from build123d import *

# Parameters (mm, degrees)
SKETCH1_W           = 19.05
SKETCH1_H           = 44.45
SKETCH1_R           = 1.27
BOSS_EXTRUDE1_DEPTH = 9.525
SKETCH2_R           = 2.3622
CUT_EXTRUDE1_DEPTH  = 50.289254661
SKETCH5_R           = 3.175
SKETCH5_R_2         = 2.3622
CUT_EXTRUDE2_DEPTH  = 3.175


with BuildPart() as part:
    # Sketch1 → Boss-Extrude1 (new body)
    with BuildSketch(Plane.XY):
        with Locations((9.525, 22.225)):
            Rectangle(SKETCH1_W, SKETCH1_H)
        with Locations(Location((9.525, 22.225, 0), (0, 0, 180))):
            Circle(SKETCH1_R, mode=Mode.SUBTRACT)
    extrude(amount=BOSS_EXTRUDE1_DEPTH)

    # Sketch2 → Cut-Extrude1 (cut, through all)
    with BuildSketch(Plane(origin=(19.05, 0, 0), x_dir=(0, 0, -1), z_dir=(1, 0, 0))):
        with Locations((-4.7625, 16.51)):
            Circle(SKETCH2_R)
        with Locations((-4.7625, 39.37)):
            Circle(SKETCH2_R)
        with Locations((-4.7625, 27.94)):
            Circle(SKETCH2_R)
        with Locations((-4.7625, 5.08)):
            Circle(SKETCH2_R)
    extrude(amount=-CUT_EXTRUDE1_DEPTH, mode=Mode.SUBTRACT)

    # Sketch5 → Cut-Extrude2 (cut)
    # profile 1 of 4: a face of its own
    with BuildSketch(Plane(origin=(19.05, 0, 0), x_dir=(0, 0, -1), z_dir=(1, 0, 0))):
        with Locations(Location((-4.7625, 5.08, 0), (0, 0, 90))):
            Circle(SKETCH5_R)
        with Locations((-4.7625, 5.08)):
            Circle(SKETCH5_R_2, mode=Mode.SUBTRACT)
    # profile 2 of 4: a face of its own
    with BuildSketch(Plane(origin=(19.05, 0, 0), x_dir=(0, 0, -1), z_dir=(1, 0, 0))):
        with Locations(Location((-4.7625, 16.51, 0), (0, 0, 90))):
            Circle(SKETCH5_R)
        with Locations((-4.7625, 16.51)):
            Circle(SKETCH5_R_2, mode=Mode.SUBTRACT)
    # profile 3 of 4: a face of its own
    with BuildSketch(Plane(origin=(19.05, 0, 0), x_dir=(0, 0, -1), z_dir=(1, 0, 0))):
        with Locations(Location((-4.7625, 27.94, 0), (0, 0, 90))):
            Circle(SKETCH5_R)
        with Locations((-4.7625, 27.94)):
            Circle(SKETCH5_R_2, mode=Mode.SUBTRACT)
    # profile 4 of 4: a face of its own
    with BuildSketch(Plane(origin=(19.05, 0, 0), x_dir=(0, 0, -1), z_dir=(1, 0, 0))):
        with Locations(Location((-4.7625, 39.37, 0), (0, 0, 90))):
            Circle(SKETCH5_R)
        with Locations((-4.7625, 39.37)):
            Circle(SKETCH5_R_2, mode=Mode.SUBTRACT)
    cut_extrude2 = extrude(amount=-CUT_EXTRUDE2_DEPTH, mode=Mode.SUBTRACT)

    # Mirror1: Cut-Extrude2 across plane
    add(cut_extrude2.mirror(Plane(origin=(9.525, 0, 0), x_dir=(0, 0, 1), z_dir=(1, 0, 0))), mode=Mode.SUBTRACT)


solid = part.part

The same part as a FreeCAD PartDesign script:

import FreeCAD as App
import Part
import Sketcher

V = App.Vector
Q = App.Units.Quantity

doc = App.newDocument("Part")
body = doc.addObject("PartDesign::Body", "Body")

sketch1 = body.newObject("Sketcher::SketchObject", "Sketch")
sketch1.AttachmentSupport = (doc.getObject("XY_Plane"), [""])
sketch1.MapMode = "FlatFace"
sketch1.addGeometry([
    Part.LineSegment(V(0, 44.45, 0), V(0, 0, 0)),
    Part.LineSegment(V(0, 0, 0), V(19.05, 0, 0)),
    Part.LineSegment(V(19.05, 0, 0), V(19.05, 44.45, 0)),
    Part.LineSegment(V(19.05, 44.45, 0), V(0, 44.45, 0)),
    Part.Circle(V(9.525, 22.225, 0), V(0, 0, 1), 1.27),
], False)
sketch1.addConstraint([
    Sketcher.Constraint("Coincident", 0, 2, 1, 1),
    Sketcher.Constraint("Coincident", 1, 2, 2, 1),
    Sketcher.Constraint("Coincident", 2, 2, 3, 1),
    Sketcher.Constraint("Coincident", 3, 2, 0, 1),
    Sketcher.Constraint("Vertical", 0),
    Sketcher.Constraint("Horizontal", 1),
    Sketcher.Constraint("Vertical", 2),
    Sketcher.Constraint("Horizontal", 3),
    Sketcher.Constraint("Coincident", 0, 2, -1, 1),
    Sketcher.Constraint("Diameter", 4, Q("0.1 in")),
    Sketcher.Constraint("DistanceX", 1, 1, 1, 2, Q("0.75 in")),
    Sketcher.Constraint("DistanceY", 0, 2, 0, 1, Q("1.75 in")),
    Sketcher.Constraint("DistanceX", -1, 1, 4, 3, Q("0.375 in")),
    Sketcher.Constraint("DistanceY", -1, 1, 4, 3, Q("0.875 in")),
])
pad1 = body.newObject("PartDesign::Pad", "Pad")
pad1.Profile = sketch1
pad1.Length = Q("0.375 in")

sketch2 = body.newObject("Sketcher::SketchObject", "Sketch001")
sketch2.AttachmentSupport = (doc.getObject("YZ_Plane"), [""])
sketch2.MapMode = "FlatFace"
sketch2.AttachmentOffset = App.Placement(V(0, 0, 0.75 * 25.4), App.Rotation())
sketch2.addGeometry([
    Part.Circle(V(16.51, 4.7625, 0), V(0, 0, 1), 2.3622),
    Part.Circle(V(39.37, 4.7625, 0), V(0, 0, 1), 2.3622),
    Part.Circle(V(27.94, 4.7625, 0), V(0, 0, 1), 2.3622),
    Part.Circle(V(5.08, 4.7625, 0), V(0, 0, 1), 2.3622),
], False)
sketch2.addConstraint([
    Sketcher.Constraint("Equal", 0, 1),
    Sketcher.Constraint("Equal", 1, 2),
    Sketcher.Constraint("Equal", 2, 3),
    Sketcher.Constraint("Horizontal", 0, 3, 1, 3),
    Sketcher.Constraint("Horizontal", 1, 3, 2, 3),
    Sketcher.Constraint("Horizontal", 2, 3, 3, 3),
    Sketcher.Constraint("Diameter", 0, Q("0.186 in")),
    Sketcher.Constraint("DistanceX", -1, 1, 2, 3, Q("1.1 in")),
    Sketcher.Constraint("DistanceX", -1, 1, 3, 3, Q("0.2 in")),
    Sketcher.Constraint("DistanceX", 0, 3, 1, 3, Q("0.9 in")),
    Sketcher.Constraint("DistanceX", -1, 1, 0, 3, Q("0.65 in")),
    Sketcher.Constraint("DistanceY", -1, 1, 0, 3, Q("0.1875 in")),
])
pocket1 = body.newObject("PartDesign::Pocket", "Pocket")
pocket1.Profile = sketch2
pocket1.Type = "ThroughAll"

sketch3 = body.newObject("Sketcher::SketchObject", "Sketch002")
sketch3.AttachmentSupport = (doc.getObject("YZ_Plane"), [""])
sketch3.MapMode = "FlatFace"
sketch3.AttachmentOffset = App.Placement(V(0, 0, 0.75 * 25.4), App.Rotation())
sketch3.addGeometry([
    Part.Circle(V(5.08, 4.7625, 0), V(0, 0, 1), 3.175),
    Part.Circle(V(5.08, 4.7625, 0), V(0, 0, 1), 2.3622),
    Part.Circle(V(16.51, 4.7625, 0), V(0, 0, 1), 3.175),
    Part.Circle(V(16.51, 4.7625, 0), V(0, 0, 1), 2.3622),
    Part.Circle(V(27.94, 4.7625, 0), V(0, 0, 1), 3.175),
    Part.Circle(V(27.94, 4.7625, 0), V(0, 0, 1), 2.3622),
    Part.Circle(V(39.37, 4.7625, 0), V(0, 0, 1), 3.175),
    Part.Circle(V(39.37, 4.7625, 0), V(0, 0, 1), 2.3622),
], False)
sketch3.addConstraint([
    Sketcher.Constraint("Coincident", 1, 3, 0, 3),
    Sketcher.Constraint("Coincident", 3, 3, 2, 3),
    Sketcher.Constraint("Coincident", 5, 3, 4, 3),
    Sketcher.Constraint("Coincident", 7, 3, 6, 3),
    Sketcher.Constraint("Equal", 0, 2),
    Sketcher.Constraint("Equal", 1, 3),
    Sketcher.Constraint("Equal", 2, 4),
    Sketcher.Constraint("Equal", 3, 5),
    Sketcher.Constraint("Equal", 4, 6),
    Sketcher.Constraint("Equal", 5, 7),
    Sketcher.Constraint("Horizontal", 1, 3, 2, 3),
    Sketcher.Constraint("Horizontal", 3, 3, 4, 3),
    Sketcher.Constraint("Horizontal", 5, 3, 6, 3),
    Sketcher.Constraint("Diameter", 0, Q("0.25 in")),
    Sketcher.Constraint("Diameter", 1, Q("0.186 in")),
    Sketcher.Constraint("DistanceX", -1, 1, 0, 3, Q("0.2 in")),
    Sketcher.Constraint("DistanceX", -1, 1, 4, 3, Q("1.1 in")),
    Sketcher.Constraint("DistanceX", 2, 3, 6, 3, Q("0.9 in")),
    Sketcher.Constraint("DistanceX", -1, 1, 2, 3, Q("0.65 in")),
    Sketcher.Constraint("DistanceY", -1, 1, 0, 3, Q("0.1875 in")),
])
pocket2 = body.newObject("PartDesign::Pocket", "Pocket001")
pocket2.Profile = sketch3
pocket2.Length = Q("0.125 in")
doc.recompute()

datumplane = body.newObject("PartDesign::Plane", "DatumPlane")
datumplane.AttachmentSupport = (doc.getObject("YZ_Plane"), [""])
datumplane.MapMode = "FlatFace"
datumplane.AttachmentOffset = App.Placement(V(0, 0, 0.375 * 25.4), App.Rotation())
mirrored = body.newObject("PartDesign::Mirrored", "Mirrored")
mirrored.Originals = [pocket2]
mirrored.MirrorPlane = (datumplane, [""])
body.Tip = mirrored

doc.recompute()
